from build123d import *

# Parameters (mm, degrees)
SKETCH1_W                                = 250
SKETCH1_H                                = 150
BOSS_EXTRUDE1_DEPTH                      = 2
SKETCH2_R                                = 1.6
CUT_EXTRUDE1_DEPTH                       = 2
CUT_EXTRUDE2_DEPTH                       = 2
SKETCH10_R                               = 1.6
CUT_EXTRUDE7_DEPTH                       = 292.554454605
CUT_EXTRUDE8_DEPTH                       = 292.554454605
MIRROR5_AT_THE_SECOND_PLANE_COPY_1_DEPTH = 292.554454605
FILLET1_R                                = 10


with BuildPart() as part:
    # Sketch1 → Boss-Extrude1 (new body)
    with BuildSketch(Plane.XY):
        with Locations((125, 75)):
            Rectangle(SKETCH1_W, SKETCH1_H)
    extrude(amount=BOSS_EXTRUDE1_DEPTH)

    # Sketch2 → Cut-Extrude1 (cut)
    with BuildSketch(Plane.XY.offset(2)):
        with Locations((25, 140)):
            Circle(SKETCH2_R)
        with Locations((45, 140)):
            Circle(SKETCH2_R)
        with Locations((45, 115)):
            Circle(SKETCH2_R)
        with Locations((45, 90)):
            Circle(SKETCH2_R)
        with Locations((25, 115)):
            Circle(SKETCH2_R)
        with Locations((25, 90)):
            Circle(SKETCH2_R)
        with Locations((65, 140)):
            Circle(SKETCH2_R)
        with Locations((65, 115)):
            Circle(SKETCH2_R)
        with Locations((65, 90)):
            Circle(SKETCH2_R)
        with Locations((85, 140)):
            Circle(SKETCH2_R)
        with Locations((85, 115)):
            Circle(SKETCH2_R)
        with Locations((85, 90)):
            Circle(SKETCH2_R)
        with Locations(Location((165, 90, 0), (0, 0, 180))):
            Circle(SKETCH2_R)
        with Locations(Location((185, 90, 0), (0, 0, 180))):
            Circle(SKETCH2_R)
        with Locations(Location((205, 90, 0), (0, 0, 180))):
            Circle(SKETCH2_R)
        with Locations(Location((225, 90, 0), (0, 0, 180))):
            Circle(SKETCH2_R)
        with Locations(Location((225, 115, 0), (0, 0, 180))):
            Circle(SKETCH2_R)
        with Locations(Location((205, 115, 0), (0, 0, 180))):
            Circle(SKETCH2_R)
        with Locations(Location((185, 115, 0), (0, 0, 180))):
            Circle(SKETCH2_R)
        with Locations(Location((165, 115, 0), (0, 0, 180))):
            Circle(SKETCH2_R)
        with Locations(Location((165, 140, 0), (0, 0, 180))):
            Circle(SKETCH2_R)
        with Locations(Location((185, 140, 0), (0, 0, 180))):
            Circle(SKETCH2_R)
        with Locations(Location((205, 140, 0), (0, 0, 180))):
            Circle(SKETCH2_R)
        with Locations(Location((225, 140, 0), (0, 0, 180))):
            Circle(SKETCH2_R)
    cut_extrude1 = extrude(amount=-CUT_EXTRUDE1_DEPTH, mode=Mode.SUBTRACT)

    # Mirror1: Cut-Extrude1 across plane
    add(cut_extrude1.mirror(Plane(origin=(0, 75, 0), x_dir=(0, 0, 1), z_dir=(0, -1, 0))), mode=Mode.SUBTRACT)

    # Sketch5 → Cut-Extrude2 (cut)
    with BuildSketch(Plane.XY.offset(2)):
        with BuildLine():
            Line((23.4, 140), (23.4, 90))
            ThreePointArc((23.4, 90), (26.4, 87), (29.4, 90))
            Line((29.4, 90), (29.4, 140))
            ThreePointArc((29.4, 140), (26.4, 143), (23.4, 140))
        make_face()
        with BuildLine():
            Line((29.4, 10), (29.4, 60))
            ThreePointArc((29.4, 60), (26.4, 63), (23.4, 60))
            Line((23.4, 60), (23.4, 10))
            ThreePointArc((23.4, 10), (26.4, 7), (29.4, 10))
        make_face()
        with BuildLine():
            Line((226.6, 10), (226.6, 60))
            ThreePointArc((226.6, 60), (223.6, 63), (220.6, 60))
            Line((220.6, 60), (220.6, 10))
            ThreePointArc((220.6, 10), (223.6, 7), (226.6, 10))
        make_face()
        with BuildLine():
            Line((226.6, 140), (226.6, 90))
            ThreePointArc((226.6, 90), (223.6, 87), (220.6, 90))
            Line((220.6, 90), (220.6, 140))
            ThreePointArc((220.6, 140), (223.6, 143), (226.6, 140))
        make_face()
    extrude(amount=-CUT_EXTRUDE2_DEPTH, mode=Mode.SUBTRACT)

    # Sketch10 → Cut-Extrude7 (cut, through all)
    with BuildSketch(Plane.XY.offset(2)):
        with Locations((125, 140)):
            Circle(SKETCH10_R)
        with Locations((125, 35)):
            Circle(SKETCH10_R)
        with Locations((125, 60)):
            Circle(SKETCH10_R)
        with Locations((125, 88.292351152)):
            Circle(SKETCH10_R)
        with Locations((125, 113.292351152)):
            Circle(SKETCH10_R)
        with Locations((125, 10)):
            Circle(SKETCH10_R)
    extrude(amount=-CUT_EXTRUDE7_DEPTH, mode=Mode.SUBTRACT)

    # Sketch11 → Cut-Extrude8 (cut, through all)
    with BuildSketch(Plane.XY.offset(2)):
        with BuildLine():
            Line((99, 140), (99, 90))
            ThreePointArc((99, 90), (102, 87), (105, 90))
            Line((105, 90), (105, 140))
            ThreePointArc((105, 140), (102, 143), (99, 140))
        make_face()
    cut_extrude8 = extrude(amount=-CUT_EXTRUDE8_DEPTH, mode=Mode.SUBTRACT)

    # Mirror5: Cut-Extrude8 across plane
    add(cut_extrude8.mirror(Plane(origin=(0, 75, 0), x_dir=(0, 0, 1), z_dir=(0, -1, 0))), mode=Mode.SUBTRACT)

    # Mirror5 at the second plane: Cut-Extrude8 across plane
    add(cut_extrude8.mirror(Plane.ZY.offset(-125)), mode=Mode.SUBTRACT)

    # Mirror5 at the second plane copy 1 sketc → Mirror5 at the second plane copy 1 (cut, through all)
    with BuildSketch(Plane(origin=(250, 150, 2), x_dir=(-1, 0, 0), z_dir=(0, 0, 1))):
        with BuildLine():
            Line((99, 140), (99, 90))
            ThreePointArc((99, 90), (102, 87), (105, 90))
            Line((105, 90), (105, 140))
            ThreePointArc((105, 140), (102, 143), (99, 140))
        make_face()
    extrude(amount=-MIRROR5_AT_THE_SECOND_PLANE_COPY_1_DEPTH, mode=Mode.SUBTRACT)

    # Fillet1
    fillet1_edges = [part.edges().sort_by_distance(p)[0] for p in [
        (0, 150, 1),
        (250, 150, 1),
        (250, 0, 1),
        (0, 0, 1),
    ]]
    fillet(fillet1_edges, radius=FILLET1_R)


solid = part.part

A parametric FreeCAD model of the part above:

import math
import FreeCAD as App
import Part
import Sketcher
from FreeCAD import Vector
Q = App.Units.Quantity


def edges_at(feature, points):
    """Names of the edges that pass closest to the given points."""
    edges = feature.Shape.Edges
    near = lambda p: min(range(len(edges)), key=lambda i: edges[i].distToShape(Part.Vertex(*p))[0])
    return sorted({f"Edge{near(p) + 1}" for p in points})


def add_polygon(sketch, points):
    """Adds a closed chain of lines whose ends are joined by coincident constraints."""
    first, n = sketch.GeometryCount, len(points)
    for a, b in zip(points, points[1:] + points[:1]):
        sketch.addGeometry(Part.LineSegment(App.Vector(*a, 0), App.Vector(*b, 0)), False)
    for i in range(n):
        sketch.addConstraint(Sketcher.Constraint("Coincident", first + i, 2, first + (i + 1) % n, 1))

doc = App.newDocument("Part")
params = doc.addObject("Spreadsheet::Sheet", "Params")
for row, (alias, value) in enumerate([
    ("sketch1_width", "250 mm"),
    ("sketch1_height", "150 mm"),
    ("pad1_length", "2 mm"),
    ("sketch2_diameter", "3.2 mm"),
    ("pocket1_length", "2 mm"),
    ("sketch3_radius", "3 mm"),
    ("sketch3_height", "50 mm"),
    ("pocket2_length", "2 mm"),
    ("sketch4_diameter", "3.2 mm"),
    ("sketch5_radius", "3 mm"),
    ("sketch5_height", "50 mm"),
    ("sketch6_radius", "3 mm"),
    ("sketch6_height", "50 mm"),
    ("fillet_radius", "10 mm"),
], start=1):
    params.set(f"A{row}", alias)
    params.set(f"B{row}", "=" + value)
    params.setAlias(f"B{row}", alias)

body = doc.addObject("PartDesign::Body", "Body")

sketch1 = doc.addObject("Sketcher::SketchObject", "Sketch")
body.addObject(sketch1)
sketch1.AttachmentSupport = (doc.XY_Plane, [""])
sketch1.MapMode = "FlatFace"
add_polygon(sketch1, [(0, 150), (0, 0), (250, 0), (250, 150)])
sketch1.addConstraint([
    Sketcher.Constraint("Vertical", 0),
    Sketcher.Constraint("Horizontal", 1),
    Sketcher.Constraint("Vertical", 2),
    Sketcher.Constraint("Horizontal", 3),
    Sketcher.Constraint("Coincident", 0, 2, -1, 1),
    Sketcher.Constraint("DistanceX", 1, 1, 1, 2, Q("250 mm")),
    Sketcher.Constraint("DistanceY", 0, 2, 0, 1, Q("150 mm")),
])
sketch1.setExpression("Constraints[9]", "Params.sketch1_width")
sketch1.setExpression("Constraints[10]", "Params.sketch1_height")
pad1 = doc.addObject("PartDesign::Pad", "Pad")
body.addObject(pad1)
pad1.Profile = sketch1
pad1.setExpression("Length", "Params.pad1_length")

sketch2 = doc.addObject("Sketcher::SketchObject", "Sketch001")
body.addObject(sketch2)
sketch2.AttachmentSupport = (doc.XY_Plane, [""])
sketch2.MapMode = "FlatFace"
sketch2.AttachmentOffset = App.Placement(Vector(0, 0, 2), App.Rotation())
sketch2.addGeometry([
    Part.Circle(Vector(25, 140, 0), Vector(0, 0, 1), 1.6),
    Part.Circle(Vector(45, 140, 0), Vector(0, 0, 1), 1.6),
    Part.Circle(Vector(45, 115, 0), Vector(0, 0, 1), 1.6),
    Part.Circle(Vector(45, 90, 0), Vector(0, 0, 1), 1.6),
    Part.Circle(Vector(25, 115, 0), Vector(0, 0, 1), 1.6),
    Part.Circle(Vector(25, 90, 0), Vector(0, 0, 1), 1.6),
    Part.Circle(Vector(65, 140, 0), Vector(0, 0, 1), 1.6),
    Part.Circle(Vector(65, 115, 0), Vector(0, 0, 1), 1.6),
    Part.Circle(Vector(65, 90, 0), Vector(0, 0, 1), 1.6),
    Part.Circle(Vector(85, 140, 0), Vector(0, 0, 1), 1.6),
    Part.Circle(Vector(85, 115, 0), Vector(0, 0, 1), 1.6),
    Part.Circle(Vector(85, 90, 0), Vector(0, 0, 1), 1.6),
    Part.Circle(Vector(165, 90, 0), Vector(0, 0, 1), 1.6),
    Part.Circle(Vector(185, 90, 0), Vector(0, 0, 1), 1.6),
    Part.Circle(Vector(205, 90, 0), Vector(0, 0, 1), 1.6),
    Part.Circle(Vector(225, 90, 0), Vector(0, 0, 1), 1.6),
    Part.Circle(Vector(225, 115, 0), Vector(0, 0, 1), 1.6),
    Part.Circle(Vector(205, 115, 0), Vector(0, 0, 1), 1.6),
    Part.Circle(Vector(185, 115, 0), Vector(0, 0, 1), 1.6),
    Part.Circle(Vector(165, 115, 0), Vector(0, 0, 1), 1.6),
    Part.Circle(Vector(165, 140, 0), Vector(0, 0, 1), 1.6),
    Part.Circle(Vector(185, 140, 0), Vector(0, 0, 1), 1.6),
    Part.Circle(Vector(205, 140, 0), Vector(0, 0, 1), 1.6),
    Part.Circle(Vector(225, 140, 0), Vector(0, 0, 1), 1.6),
], False)
sketch2.addConstraint([
    Sketcher.Constraint("Equal", 0, 1),
    Sketcher.Constraint("Equal", 1, 2),
    Sketcher.Constraint("Equal", 2, 3),
    Sketcher.Constraint("Equal", 3, 4),
    Sketcher.Constraint("Equal", 4, 5),
    Sketcher.Constraint("Equal", 5, 6),
    Sketcher.Constraint("Equal", 6, 7),
    Sketcher.Constraint("Equal", 7, 8),
    Sketcher.Constraint("Equal", 8, 9),
    Sketcher.Constraint("Equal", 9, 10),
    Sketcher.Constraint("Equal", 10, 11),
    Sketcher.Constraint("Equal", 11, 12),
    Sketcher.Constraint("Equal", 12, 13),
    Sketcher.Constraint("Equal", 13, 14),
    Sketcher.Constraint("Equal", 14, 15),
    Sketcher.Constraint("Equal", 15, 16),
    Sketcher.Constraint("Equal", 16, 17),
    Sketcher.Constraint("Equal", 17, 18),
    Sketcher.Constraint("Equal", 18, 19),
    Sketcher.Constraint("Equal", 19, 20),
    Sketcher.Constraint("Equal", 20, 21),
    Sketcher.Constraint("Equal", 21, 22),
    Sketcher.Constraint("Equal", 22, 23),
    Sketcher.Constraint("Horizontal", 0, 3, 1, 3),
    Sketcher.Constraint("Horizontal", 2, 3, 4, 3),
    Sketcher.Constraint("Horizontal", 3, 3, 5, 3),
    Sketcher.Constraint("Horizontal", 1, 3, 6, 3),
    Sketcher.Constraint("Horizontal", 4, 3, 7, 3),
    Sketcher.Constraint("Horizontal", 5, 3, 8, 3),
    Sketcher.Constraint("Horizontal", 6, 3, 9, 3),
    Sketcher.Constraint("Horizontal", 7, 3, 10, 3),
    Sketcher.Constraint("Horizontal", 8, 3, 11, 3),
    Sketcher.Constraint("Horizontal", 11, 3, 12, 3),
    Sketcher.Constraint("Horizontal", 12, 3, 13, 3),
    Sketcher.Constraint("Horizontal", 13, 3, 14, 3),
    Sketcher.Constraint("Horizontal", 14, 3, 15, 3),
    Sketcher.Constraint("Horizontal", 10, 3, 16, 3),
    Sketcher.Constraint("Horizontal", 16, 3, 17, 3),
    Sketcher.Constraint("Horizontal", 17, 3, 18, 3),
    Sketcher.Constraint("Horizontal", 18, 3, 19, 3),
    Sketcher.Constraint("Horizontal", 9, 3, 20, 3),
    Sketcher.Constraint("Horizontal", 20, 3, 21, 3),
    Sketcher.Constraint("Horizontal", 21, 3, 22, 3),
    Sketcher.Constraint("Horizontal", 22, 3, 23, 3),
    Sketcher.Constraint("Vertical", 1, 3, 2, 3),
    Sketcher.Constraint("Vertical", 2, 3, 3, 3),
    Sketcher.Constraint("Vertical", 0, 3, 4, 3),
    Sketcher.Constraint("Vertical", 4, 3, 5, 3),
    Sketcher.Constraint("Vertical", 6, 3, 7, 3),
    Sketcher.Constraint("Vertical", 7, 3, 8, 3),
    Sketcher.Constraint("Vertical", 9, 3, 10, 3),
    Sketcher.Constraint("Vertical", 10, 3, 11, 3),
    Sketcher.Constraint("Vertical", 15, 3, 16, 3),
    Sketcher.Constraint("Vertical", 14, 3, 17, 3),
    Sketcher.Constraint("Vertical", 13, 3, 18, 3),
    Sketcher.Constraint("Vertical", 12, 3, 19, 3),
    Sketcher.Constraint("Vertical", 19, 3, 20, 3),
    Sketcher.Constraint("Vertical", 18, 3, 21, 3),
    Sketcher.Constraint("Vertical", 17, 3, 22, 3),
    Sketcher.Constraint("Vertical", 16, 3, 23, 3),
    Sketcher.Constraint("Diameter", 0, Q("3.2 mm")),
    Sketcher.Constraint("DistanceX", -1, 1, 0, 3, Q("25 mm")),
    Sketcher.Constraint("DistanceY", -1, 1, 0, 3, Q("140 mm")),
    Sketcher.Constraint("DistanceX", -1, 1, 1, 3, Q("45 mm")),
    Sketcher.Constraint("DistanceY", -1, 1, 2, 3, Q("115 mm")),
    Sketcher.Constraint("DistanceY", -1, 1, 3, 3, Q("90 mm")),
    Sketcher.Constraint("DistanceX", -1, 1, 6, 3, Q("65 mm")),
    Sketcher.Constraint("DistanceX", -1, 1, 9, 3, Q("85 mm")),
    Sketcher.Constraint("DistanceX", -1, 1, 12, 3, Q("165 mm")),
    Sketcher.Constraint("DistanceX", -1, 1, 13, 3, Q("185 mm")),
    Sketcher.Constraint("DistanceX", -1, 1, 14, 3, Q("205 mm")),
    Sketcher.Constraint("DistanceX", -1, 1, 15, 3, Q("225 mm")),
])
sketch2.setExpression("Constraints[60]", "Params.sketch2_diameter")
pocket1 = doc.addObject("PartDesign::Pocket", "Pocket")
body.addObject(pocket1)
pocket1.Profile = sketch2
pocket1.setExpression("Length", "Params.pocket1_length")
doc.recompute()

datumplane = doc.addObject("PartDesign::Plane", "DatumPlane")
body.addObject(datumplane)
datumplane.AttachmentSupport = (doc.XZ_Plane, [""])
datumplane.MapMode = "FlatFace"
datumplane.AttachmentOffset = App.Placement(Vector(0, 0, -75), App.Rotation())
mirrored = doc.addObject("PartDesign::Mirrored", "Mirrored")
body.addObject(mirrored)
mirrored.Originals = [pocket1]
mirrored.MirrorPlane = (datumplane, [""])
body.Tip = mirrored

sketch3 = doc.addObject("Sketcher::SketchObject", "Sketch002")
body.addObject(sketch3)
sketch3.AttachmentSupport = (doc.XY_Plane, [""])
sketch3.MapMode = "FlatFace"
sketch3.AttachmentOffset = App.Placement(Vector(0, 0, 2), App.Rotation())
sketch3.addGeometry([
    Part.LineSegment(Vector(23.4, 140, 0), Vector(23.4, 90, 0)),
    Part.ArcOfCircle(Part.Circle(Vector(26.4, 90, 0), Vector(0, 0, 1), 3), math.radians(180), math.radians(360)),
    Part.LineSegment(Vector(29.4, 90, 0), Vector(29.4, 140, 0)),
    Part.ArcOfCircle(Part.Circle(Vector(26.4, 140, 0), Vector(0, 0, 1), 3), math.radians(0), math.radians(180)),
    Part.LineSegment(Vector(29.4, 10, 0), Vector(29.4, 60, 0)),
    Part.ArcOfCircle(Part.Circle(Vector(26.4, 60, 0), Vector(0, 0, 1), 3), math.radians(0), math.radians(180)),
    Part.LineSegment(Vector(23.4, 60, 0), Vector(23.4, 10, 0)),
    Part.ArcOfCircle(Part.Circle(Vector(26.4, 10, 0), Vector(0, 0, 1), 3), math.radians(180), math.radians(360)),
    Part.LineSegment(Vector(226.6, 10, 0), Vector(226.6, 60, 0)),
    Part.ArcOfCircle(Part.Circle(Vector(223.6, 60, 0), Vector(0, 0, 1), 3), math.radians(0), math.radians(180)),
    Part.LineSegment(Vector(220.6, 60, 0), Vector(220.6, 10, 0)),
    Part.ArcOfCircle(Part.Circle(Vector(223.6, 10, 0), Vector(0, 0, 1), 3), math.radians(180), math.radians(360)),
    Part.LineSegment(Vector(226.6, 90, 0), Vector(226.6, 140, 0)),
    Part.ArcOfCircle(Part.Circle(Vector(223.6, 140, 0), Vector(0, 0, 1), 3), math.radians(0), math.radians(180)),
    Part.LineSegment(Vector(220.6, 140, 0), Vector(220.6, 90, 0)),
    Part.ArcOfCircle(Part.Circle(Vector(223.6, 90, 0), Vector(0, 0, 1), 3), math.radians(180), math.radians(360)),
], False)
sketch3.addConstraint([
    Sketcher.Constraint("Tangent", 0, 2, 1, 1),
    Sketcher.Constraint("Tangent", 1, 2, 2, 1),
    Sketcher.Constraint("Tangent", 2, 2, 3, 1),
    Sketcher.Constraint("Tangent", 3, 2, 0, 1),
    Sketcher.Constraint("Tangent", 4, 2, 5, 1),
    Sketcher.Constraint("Tangent", 5, 2, 6, 1),
    Sketcher.Constraint("Tangent", 6, 2, 7, 1),
    Sketcher.Constraint("Tangent", 7, 2, 4, 1),
    Sketcher.Constraint("Tangent", 8, 2, 9, 1),
    Sketcher.Constraint("Tangent", 9, 2, 10, 1),
    Sketcher.Constraint("Tangent", 10, 2, 11, 1),
    Sketcher.Constraint("Tangent", 11, 2, 8, 1),
    Sketcher.Constraint("Tangent", 12, 2, 13, 1),
    Sketcher.Constraint("Tangent", 13, 2, 14, 1),
    Sketcher.Constraint("Tangent", 14, 2, 15, 1),
    Sketcher.Constraint("Tangent", 15, 2, 12, 1),
    Sketcher.Constraint("Vertical", 0),
    Sketcher.Constraint("Vertical", 2),
    Sketcher.Constraint("Vertical", 4),
    Sketcher.Constraint("Vertical", 6),
    Sketcher.Constraint("Vertical", 8),
    Sketcher.Constraint("Vertical", 10),
    Sketcher.Constraint("Vertical", 12),
    Sketcher.Constraint("Vertical", 14),
    Sketcher.Constraint("Equal", 3, 5),
    Sketcher.Constraint("Equal", 7, 9),
    Sketcher.Constraint("Equal", 11, 13),
    Sketcher.Constraint("Horizontal", 5, 3, 9, 3),
    Sketcher.Constraint("Horizontal", 7, 3, 11, 3),
    Sketcher.Constraint("Horizontal", 3, 3, 13, 3),
    Sketcher.Constraint("Horizontal", 1, 3, 15, 3),
    Sketcher.Constraint("Vertical", 3, 3, 5, 3),
    Sketcher.Constraint("Vertical", 11, 3, 13, 3),
    Sketcher.Constraint("Equal", 2, 4),
    Sketcher.Constraint("Radius", 1, Q("3 mm")),
    Sketcher.Constraint("DistanceY", 0, 2, 0, 1, Q("50 mm")),
    Sketcher.Constraint("DistanceY", -1, 1, 1, 3, Q("90 mm")),
    Sketcher.Constraint("DistanceY", -1, 1, 5, 3, Q("60 mm")),
    Sketcher.Constraint("DistanceX", -1, 1, 1, 3, Q("26.4 mm")),
    Sketcher.Constraint("DistanceX", -1, 1, 9, 3, Q("223.6 mm")),
])
sketch3.setExpression("Constraints[34]", "Params.sketch3_radius")
sketch3.setExpression("Constraints[35]", "Params.sketch3_height")
pocket2 = doc.addObject("PartDesign::Pocket", "Pocket001")
body.addObject(pocket2)
pocket2.Profile = sketch3
pocket2.setExpression("Length", "Params.pocket2_length")

sketch4 = doc.addObject("Sketcher::SketchObject", "Sketch003")
body.addObject(sketch4)
sketch4.AttachmentSupport = (doc.XY_Plane, [""])
sketch4.MapMode = "FlatFace"
sketch4.AttachmentOffset = App.Placement(Vector(0, 0, 2), App.Rotation())
sketch4.addGeometry([
    Part.Circle(Vector(125, 140, 0), Vector(0, 0, 1), 1.6),
    Part.Circle(Vector(125, 35, 0), Vector(0, 0, 1), 1.6),
    Part.Circle(Vector(125, 60, 0), Vector(0, 0, 1), 1.6),
    Part.Circle(Vector(125, 88.3, 0), Vector(0, 0, 1), 1.6),
    Part.Circle(Vector(125, 113.3, 0), Vector(0, 0, 1), 1.6),
    Part.Circle(Vector(125, 10, 0), Vector(0, 0, 1), 1.6),
], False)
sketch4.addConstraint([
    Sketcher.Constraint("Equal", 0, 1),
    Sketcher.Constraint("Equal", 1, 2),
    Sketcher.Constraint("Equal", 2, 3),
    Sketcher.Constraint("Equal", 3, 4),
    Sketcher.Constraint("Equal", 4, 5),
    Sketcher.Constraint("Vertical", 0, 3, 1, 3),
    Sketcher.Constraint("Vertical", 1, 3, 2, 3),
    Sketcher.Constraint("Vertical", 2, 3, 3, 3),
    Sketcher.Constraint("Vertical", 3, 3, 4, 3),
    Sketcher.Constraint("Vertical", 4, 3, 5, 3),
    Sketcher.Constraint("Diameter", 0, Q("3.2 mm")),
    Sketcher.Constraint("DistanceX", -1, 1, 0, 3, Q("125 mm")),
    Sketcher.Constraint("DistanceY", -1, 1, 0, 3, Q("140 mm")),
    Sketcher.Constraint("DistanceY", -1, 1, 1, 3, Q("35 mm")),
    Sketcher.Constraint("DistanceY", -1, 1, 2, 3, Q("60 mm")),
    Sketcher.Constraint("DistanceY", -1, 1, 5, 3, Q("10 mm")),
    Sketcher.Constraint("DistanceY", 3, 3, 4, 3, Q("25 mm")),
    Sketcher.Constraint("DistanceY", -1, 1, 3, 3, Q("88.292351 mm")),
])
sketch4.setExpression("Constraints[10]", "Params.sketch4_diameter")
pocket3 = doc.addObject("PartDesign::Pocket", "Pocket002")
body.addObject(pocket3)
pocket3.Profile = sketch4
pocket3.Type = "ThroughAll"

sketch5 = doc.addObject("Sketcher::SketchObject", "Sketch004")
body.addObject(sketch5)
sketch5.AttachmentSupport = (doc.XY_Plane, [""])
sketch5.MapMode = "FlatFace"
sketch5.AttachmentOffset = App.Placement(Vector(0, 0, 2), App.Rotation())
sketch5.addGeometry([
    Part.LineSegment(Vector(99, 140, 0), Vector(99, 90, 0)),
    Part.ArcOfCircle(Part.Circle(Vector(102, 90, 0), Vector(0, 0, 1), 3), math.radians(180), math.radians(360)),
    Part.LineSegment(Vector(105, 90, 0), Vector(105, 140, 0)),
    Part.ArcOfCircle(Part.Circle(Vector(102, 140, 0), Vector(0, 0, 1), 3), math.radians(0), math.radians(180)),
], False)
sketch5.addConstraint([
    Sketcher.Constraint("Tangent", 0, 2, 1, 1),
    Sketcher.Constraint("Tangent", 1, 2, 2, 1),
    Sketcher.Constraint("Tangent", 2, 2, 3, 1),
    Sketcher.Constraint("Tangent", 3, 2, 0, 1),
    Sketcher.Constraint("Vertical", 0),
    Sketcher.Constraint("Vertical", 2),
    Sketcher.Constraint("Radius", 1, Q("3 mm")),
    Sketcher.Constraint("DistanceY", 0, 2, 0, 1, Q("50 mm")),
    Sketcher.Constraint("DistanceX", -1, 1, 1, 3, Q("102 mm")),
    Sketcher.Constraint("DistanceY", -1, 1, 1, 3, Q("90 mm")),
])
sketch5.setExpression("Constraints[6]", "Params.sketch5_radius")
sketch5.setExpression("Constraints[7]", "Params.sketch5_height")
pocket4 = doc.addObject("PartDesign::Pocket", "Pocket003")
body.addObject(pocket4)
pocket4.Profile = sketch5
pocket4.Type = "ThroughAll"
doc.recompute()

datumplane2 = doc.addObject("PartDesign::Plane", "DatumPlane001")
body.addObject(datumplane2)
datumplane2.AttachmentSupport = (doc.XZ_Plane, [""])
datumplane2.MapMode = "FlatFace"
datumplane2.AttachmentOffset = App.Placement(Vector(0, 0, -75), App.Rotation())
mirrored2 = doc.addObject("PartDesign::Mirrored", "Mirrored001")
body.addObject(mirrored2)
mirrored2.Originals = [pocket4]
mirrored2.MirrorPlane = (datumplane2, [""])
body.Tip = mirrored2
doc.recompute()

datumplane3 = doc.addObject("PartDesign::Plane", "DatumPlane002")
body.addObject(datumplane3)
datumplane3.AttachmentSupport = (doc.YZ_Plane, [""])
datumplane3.MapMode = "FlatFace"
datumplane3.AttachmentOffset = App.Placement(Vector(0, 0, 125), App.Rotation())
mirrored3 = doc.addObject("PartDesign::Mirrored", "Mirrored002")
body.addObject(mirrored3)
mirrored3.Originals = [pocket4]
mirrored3.MirrorPlane = (datumplane3, [""])
body.Tip = mirrored3

sketch6 = doc.addObject("Sketcher::SketchObject", "Sketch005")
body.addObject(sketch6)
sketch6.AttachmentSupport = (doc.XY_Plane, [""])
sketch6.MapMode = "FlatFace"
sketch6.AttachmentOffset = App.Placement(Vector(0, 0, 2), App.Rotation())
sketch6.addGeometry([
    Part.LineSegment(Vector(151, 10, 0), Vector(151, 60, 0)),
    Part.ArcOfCircle(Part.Circle(Vector(148, 60, 0), Vector(0, 0, 1), 3), math.radians(0), math.radians(180)),
    Part.LineSegment(Vector(145, 60, 0), Vector(145, 10, 0)),
    Part.ArcOfCircle(Part.Circle(Vector(148, 10, 0), Vector(0, 0, 1), 3), math.radians(180), math.radians(360)),
], False)
sketch6.addConstraint([
    Sketcher.Constraint("Tangent", 0, 2, 1, 1),
    Sketcher.Constraint("Tangent", 1, 2, 2, 1),
    Sketcher.Constraint("Tangent", 2, 2, 3, 1),
    Sketcher.Constraint("Tangent", 3, 2, 0, 1),
    Sketcher.Constraint("Vertical", 0),
    Sketcher.Constraint("Vertical", 2),
    Sketcher.Constraint("Radius", 1, Q("3 mm")),
    Sketcher.Constraint("DistanceY", 0, 1, 0, 2, Q("50 mm")),
    Sketcher.Constraint("DistanceX", -1, 1, 1, 3, Q("148 mm")),
    Sketcher.Constraint("DistanceY", -1, 1, 1, 3, Q("60 mm")),
])
sketch6.setExpression("Constraints[6]", "Params.sketch6_radius")
sketch6.setExpression("Constraints[7]", "Params.sketch6_height")
pocket5 = doc.addObject("PartDesign::Pocket", "Pocket004")
body.addObject(pocket5)
pocket5.Profile = sketch6
pocket5.Type = "ThroughAll"
doc.recompute()

fillet = doc.addObject("PartDesign::Fillet", "Fillet")
body.addObject(fillet)
fillet.Base = (pocket5, edges_at(pocket5, [
    (0, 150, 1),
    (250, 150, 1),
    (250, 0, 1),
    (0, 0, 1),
]))
fillet.setExpression("Radius", "Params.fillet_radius")

doc.recompute()
